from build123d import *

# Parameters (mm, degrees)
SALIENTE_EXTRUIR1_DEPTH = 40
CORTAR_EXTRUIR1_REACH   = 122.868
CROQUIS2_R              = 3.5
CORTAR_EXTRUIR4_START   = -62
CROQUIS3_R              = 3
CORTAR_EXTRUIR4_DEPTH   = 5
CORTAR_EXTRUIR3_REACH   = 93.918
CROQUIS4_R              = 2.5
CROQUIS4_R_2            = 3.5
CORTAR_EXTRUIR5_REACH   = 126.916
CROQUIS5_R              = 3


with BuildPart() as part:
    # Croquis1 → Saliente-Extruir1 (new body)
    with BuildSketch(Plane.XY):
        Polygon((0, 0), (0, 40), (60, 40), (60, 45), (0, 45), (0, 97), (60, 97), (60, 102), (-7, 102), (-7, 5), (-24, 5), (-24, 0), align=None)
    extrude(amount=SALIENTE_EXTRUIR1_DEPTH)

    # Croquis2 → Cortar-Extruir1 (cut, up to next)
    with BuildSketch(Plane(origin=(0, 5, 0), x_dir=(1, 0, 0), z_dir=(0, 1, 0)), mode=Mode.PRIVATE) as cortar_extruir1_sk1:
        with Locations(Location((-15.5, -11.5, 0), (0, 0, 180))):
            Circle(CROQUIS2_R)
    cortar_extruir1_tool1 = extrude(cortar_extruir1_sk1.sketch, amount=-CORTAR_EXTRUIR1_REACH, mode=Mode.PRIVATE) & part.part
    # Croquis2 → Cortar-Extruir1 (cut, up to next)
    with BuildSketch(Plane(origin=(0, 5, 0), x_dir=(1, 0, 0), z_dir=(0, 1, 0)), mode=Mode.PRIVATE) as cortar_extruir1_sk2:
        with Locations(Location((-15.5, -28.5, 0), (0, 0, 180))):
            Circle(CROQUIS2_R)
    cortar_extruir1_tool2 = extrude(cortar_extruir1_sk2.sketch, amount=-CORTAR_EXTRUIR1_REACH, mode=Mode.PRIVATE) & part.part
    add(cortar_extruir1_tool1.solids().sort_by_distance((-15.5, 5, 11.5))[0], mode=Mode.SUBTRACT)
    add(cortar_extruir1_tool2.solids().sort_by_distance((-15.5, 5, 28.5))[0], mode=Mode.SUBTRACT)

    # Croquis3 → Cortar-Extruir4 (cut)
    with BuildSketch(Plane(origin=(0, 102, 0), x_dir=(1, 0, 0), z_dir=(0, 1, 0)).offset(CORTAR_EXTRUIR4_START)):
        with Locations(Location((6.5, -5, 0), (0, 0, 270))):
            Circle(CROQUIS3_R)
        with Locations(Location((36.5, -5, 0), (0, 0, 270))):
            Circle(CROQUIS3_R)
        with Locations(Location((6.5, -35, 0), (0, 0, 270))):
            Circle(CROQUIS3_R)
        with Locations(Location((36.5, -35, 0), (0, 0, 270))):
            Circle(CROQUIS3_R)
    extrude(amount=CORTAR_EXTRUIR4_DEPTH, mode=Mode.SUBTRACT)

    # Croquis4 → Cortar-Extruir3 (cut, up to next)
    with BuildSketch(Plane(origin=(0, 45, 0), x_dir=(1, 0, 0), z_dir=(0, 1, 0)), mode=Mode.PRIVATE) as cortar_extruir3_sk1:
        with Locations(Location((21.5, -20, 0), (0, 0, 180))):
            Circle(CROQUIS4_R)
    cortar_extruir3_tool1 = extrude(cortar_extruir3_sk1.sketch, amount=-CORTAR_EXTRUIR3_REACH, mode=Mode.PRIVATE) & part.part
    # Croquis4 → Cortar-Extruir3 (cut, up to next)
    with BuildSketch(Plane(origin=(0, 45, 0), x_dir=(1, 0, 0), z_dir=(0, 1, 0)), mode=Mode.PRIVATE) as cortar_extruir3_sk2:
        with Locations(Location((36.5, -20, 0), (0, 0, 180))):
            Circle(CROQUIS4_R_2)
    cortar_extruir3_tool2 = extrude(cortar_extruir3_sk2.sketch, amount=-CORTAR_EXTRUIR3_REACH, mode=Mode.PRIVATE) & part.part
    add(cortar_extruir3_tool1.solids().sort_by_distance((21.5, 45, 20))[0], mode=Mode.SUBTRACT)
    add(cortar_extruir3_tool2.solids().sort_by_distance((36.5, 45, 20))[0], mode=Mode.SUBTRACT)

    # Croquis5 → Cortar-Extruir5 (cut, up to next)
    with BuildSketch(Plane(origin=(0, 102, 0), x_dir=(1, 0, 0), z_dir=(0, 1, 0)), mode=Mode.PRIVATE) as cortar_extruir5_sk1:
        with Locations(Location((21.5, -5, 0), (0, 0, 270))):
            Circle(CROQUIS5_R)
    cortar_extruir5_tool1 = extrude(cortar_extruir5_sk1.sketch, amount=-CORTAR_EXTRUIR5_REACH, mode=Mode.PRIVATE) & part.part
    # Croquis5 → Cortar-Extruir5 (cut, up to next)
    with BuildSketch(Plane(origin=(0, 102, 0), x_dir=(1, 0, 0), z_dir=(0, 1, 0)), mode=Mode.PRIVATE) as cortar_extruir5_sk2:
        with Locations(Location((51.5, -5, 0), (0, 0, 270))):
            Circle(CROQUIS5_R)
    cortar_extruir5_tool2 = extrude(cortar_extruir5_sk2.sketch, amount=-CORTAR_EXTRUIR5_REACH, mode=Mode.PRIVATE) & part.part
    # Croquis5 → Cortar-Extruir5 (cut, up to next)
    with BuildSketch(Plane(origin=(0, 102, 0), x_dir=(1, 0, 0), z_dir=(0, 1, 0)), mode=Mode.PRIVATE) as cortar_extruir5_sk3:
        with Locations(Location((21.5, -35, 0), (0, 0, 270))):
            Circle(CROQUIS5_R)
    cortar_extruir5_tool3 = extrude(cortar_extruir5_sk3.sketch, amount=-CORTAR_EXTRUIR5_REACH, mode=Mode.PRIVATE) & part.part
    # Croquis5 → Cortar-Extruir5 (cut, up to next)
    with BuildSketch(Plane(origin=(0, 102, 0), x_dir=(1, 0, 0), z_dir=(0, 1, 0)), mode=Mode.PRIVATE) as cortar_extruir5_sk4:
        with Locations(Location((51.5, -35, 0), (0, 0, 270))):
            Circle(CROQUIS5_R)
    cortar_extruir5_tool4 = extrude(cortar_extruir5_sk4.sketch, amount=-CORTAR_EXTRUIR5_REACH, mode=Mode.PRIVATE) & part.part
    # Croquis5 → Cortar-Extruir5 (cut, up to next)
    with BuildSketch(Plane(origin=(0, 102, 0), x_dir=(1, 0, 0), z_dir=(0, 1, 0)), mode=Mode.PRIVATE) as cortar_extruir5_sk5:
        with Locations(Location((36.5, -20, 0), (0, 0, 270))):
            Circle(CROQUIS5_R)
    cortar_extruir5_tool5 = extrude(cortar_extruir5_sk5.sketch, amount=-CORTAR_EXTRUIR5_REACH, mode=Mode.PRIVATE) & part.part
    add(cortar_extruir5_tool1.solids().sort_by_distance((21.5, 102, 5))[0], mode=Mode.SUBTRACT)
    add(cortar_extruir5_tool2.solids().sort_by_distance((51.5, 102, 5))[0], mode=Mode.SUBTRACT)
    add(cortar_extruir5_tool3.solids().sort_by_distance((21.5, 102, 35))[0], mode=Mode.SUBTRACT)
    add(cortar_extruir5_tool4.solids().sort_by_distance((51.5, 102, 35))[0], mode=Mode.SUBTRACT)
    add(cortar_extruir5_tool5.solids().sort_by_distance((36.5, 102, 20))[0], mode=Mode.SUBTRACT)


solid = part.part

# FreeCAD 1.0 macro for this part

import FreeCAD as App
import Part
import Sketcher
Q = App.Units.Quantity


def add_polygon(sketch, points):
    """Adds a closed chain of lines whose ends are joined by coincident constraints."""
    first, n = sketch.GeometryCount, len(points)
    for a, b in zip(points, points[1:] + points[:1]):
        sketch.addGeometry(Part.LineSegment(App.Vector(*a, 0), App.Vector(*b, 0)), False)
    for i in range(n):
        sketch.addConstraint(Sketcher.Constraint("Coincident", first + i, 2, first + (i + 1) % n, 1))

doc = App.newDocument("Part")
params = doc.addObject("Spreadsheet::Sheet", "Params")
for row, (alias, value) in enumerate([
    ("sketch1_width", "60 mm"),
    ("sketch1_width2", "67 mm"),
    ("sketch1_width3", "17 mm"),
    ("sketch1_height", "40 mm"),
    ("sketch1_height2", "5 mm"),
    ("pad1_length", "40 mm"),
    ("sketch2_diameter", "7 mm"),
    ("sketch3_diameter", "7 mm"),
    ("sketch4_diameter", "6 mm"),
    ("pocket3_length", "5 mm"),
    ("sketch5_diameter", "5 mm"),
    ("sketch6_diameter", "7 mm"),
    ("sketch7_diameter", "6 mm"),
    ("sketch8_diameter", "6 mm"),
    ("sketch9_diameter", "6 mm"),
    ("sketch10_diameter", "6 mm"),
    ("sketch11_diameter", "6 mm"),
], start=1):
    params.set(f"A{row}", alias)
    params.set(f"B{row}", "=" + value)
    params.setAlias(f"B{row}", alias)

body = doc.addObject("PartDesign::Body", "Body")

# Sketch on XY plane
sketch1 = body.newObject("Sketcher::SketchObject", "Sketch")
sketch1.AttachmentSupport = (doc.getObject("XY_Plane"), [""])
sketch1.MapMode = "FlatFace"
add_polygon(sketch1, [(0, 0), (0, 40), (60, 40), (60, 45), (0, 45), (0, 97), (60, 97), (60, 102), (-7, 102), (-7, 5), (-24, 5), (-24, 0)])  # lines 0-11
sketch1.addConstraint([
    Sketcher.Constraint("Vertical", 0),
    Sketcher.Constraint("Horizontal", 1),
    Sketcher.Constraint("Vertical", 2),
    Sketcher.Constraint("Horizontal", 3),
    Sketcher.Constraint("Vertical", 4),
    Sketcher.Constraint("Horizontal", 5),
    Sketcher.Constraint("Vertical", 6),
    Sketcher.Constraint("Horizontal", 7),
    Sketcher.Constraint("Vertical", 8),
    Sketcher.Constraint("Horizontal", 9),
    Sketcher.Constraint("Vertical", 10),
    Sketcher.Constraint("Horizontal", 11),
    Sketcher.Constraint("Coincident", 11, 2, -1, 1),
    Sketcher.Constraint("PointOnObject", 3, 2, -2),
    Sketcher.Constraint("Vertical", 2, 2, 5, 2),
    Sketcher.Constraint("Equal", 2, 6),
    Sketcher.Constraint("Equal", 6, 10),
    Sketcher.Constraint("DistanceX", 1, 1, 1, 2, Q("60 mm")),
    Sketcher.Constraint("DistanceX", 7, 2, 7, 1, Q("67 mm")),
    Sketcher.Constraint("DistanceX", 9, 2, 9, 1, Q("17 mm")),
    Sketcher.Constraint("DistanceY", 0, 1, 0, 2, Q("40 mm")),
    Sketcher.Constraint("DistanceY", 2, 1, 2, 2, Q("5 mm")),
    Sketcher.Constraint("DistanceY", 4, 1, 4, 2, Q("52 mm")),
])
sketch1.setExpression("Constraints[29]", "Params.sketch1_width")
sketch1.setExpression("Constraints[30]", "Params.sketch1_width2")
sketch1.setExpression("Constraints[31]", "Params.sketch1_width3")
sketch1.setExpression("Constraints[32]", "Params.sketch1_height")
sketch1.setExpression("Constraints[33]", "Params.sketch1_height2")
pad1 = body.newObject("PartDesign::Pad", "Pad")
pad1.Profile = sketch1
pad1.setExpression("Length", "Params.pad1_length")

# Sketch on XZ plane
sketch2 = body.newObject("Sketcher::SketchObject", "Sketch001")
sketch2.AttachmentSupport = (doc.getObject("XZ_Plane"), [""])
sketch2.MapMode = "FlatFace"
sketch2.AttachmentOffset = App.Placement(App.Vector(0, 0, -5), App.Rotation())
sketch2.addGeometry(Part.Circle(App.Vector(-15.5, 11.5, 0), App.Vector(0, 0, 1), 3.5), False)
sketch2.addConstraint([
    Sketcher.Constraint("Diameter", 0, Q("7 mm")),
    Sketcher.Constraint("DistanceX", 0, 3, -1, 1, Q("15.5 mm")),
    Sketcher.Constraint("DistanceY", -1, 1, 0, 3, Q("11.5 mm")),
])
sketch2.setExpression("Constraints[0]", "Params.sketch2_diameter")
pocket1 = body.newObject("PartDesign::Pocket", "Pocket")
pocket1.Profile = sketch2
pocket1.Type = "UpToFirst"
pocket1.Reversed = True

# Sketch on XZ plane
sketch3 = body.newObject("Sketcher::SketchObject", "Sketch002")
sketch3.AttachmentSupport = (doc.getObject("XZ_Plane"), [""])
sketch3.MapMode = "FlatFace"
sketch3.AttachmentOffset = App.Placement(App.Vector(0, 0, -5), App.Rotation())
sketch3.addGeometry(Part.Circle(App.Vector(-15.5, 28.5, 0), App.Vector(0, 0, 1), 3.5), False)
sketch3.addConstraint([
    Sketcher.Constraint("Diameter", 0, Q("7 mm")),
    Sketcher.Constraint("DistanceX", 0, 3, -1, 1, Q("15.5 mm")),
    Sketcher.Constraint("DistanceY", -1, 1, 0, 3, Q("28.5 mm")),
])
sketch3.setExpression("Constraints[0]", "Params.sketch3_diameter")
pocket2 = body.newObject("PartDesign::Pocket", "Pocket001")
pocket2.Profile = sketch3
pocket2.Type = "UpToFirst"
pocket2.Reversed = True

# Sketch on XZ plane
sketch4 = body.newObject("Sketcher::SketchObject", "Sketch003")
sketch4.AttachmentSupport = (doc.getObject("XZ_Plane"), [""])
sketch4.MapMode = "FlatFace"
sketch4.AttachmentOffset = App.Placement(App.Vector(0, 0, -40), App.Rotation())
sketch4.addGeometry([
    Part.Circle(App.Vector(6.5, 5, 0), App.Vector(0, 0, 1), 3),
    Part.Circle(App.Vector(36.5, 5, 0), App.Vector(0, 0, 1), 3),
    Part.Circle(App.Vector(6.5, 35, 0), App.Vector(0, 0, 1), 3),
    Part.Circle(App.Vector(36.5, 35, 0), App.Vector(0, 0, 1), 3),
], False)
sketch4.addConstraint([
    Sketcher.Constraint("Equal", 0, 1),
    Sketcher.Constraint("Equal", 1, 2),
    Sketcher.Constraint("Equal", 2, 3),
    Sketcher.Constraint("Horizontal", 0, 3, 1, 3),
    Sketcher.Constraint("Horizontal", 2, 3, 3, 3),
    Sketcher.Constraint("Vertical", 0, 3, 2, 3),
    Sketcher.Constraint("Vertical", 1, 3, 3, 3),
    Sketcher.Constraint("Diameter", 0, Q("6 mm")),
    Sketcher.Constraint("DistanceY", -1, 1, 0, 3, Q("5 mm")),
    Sketcher.Constraint("DistanceY", -1, 1, 2, 3, Q("35 mm")),
    Sketcher.Constraint("DistanceX", 0, 3, 1, 3, Q("30 mm")),
    Sketcher.Constraint("DistanceX", -1, 1, 0, 3, Q("6.5 mm")),
])
sketch4.setExpression("Constraints[7]", "Params.sketch4_diameter")
pocket3 = body.newObject("PartDesign::Pocket", "Pocket002")
pocket3.Profile = sketch4
pocket3.setExpression("Length", "Params.pocket3_length")

# Sketch on XZ plane
sketch5 = body.newObject("Sketcher::SketchObject", "Sketch004")
sketch5.AttachmentSupport = (doc.getObject("XZ_Plane"), [""])
sketch5.MapMode = "FlatFace"
sketch5.AttachmentOffset = App.Placement(App.Vector(0, 0, -45), App.Rotation())
sketch5.addGeometry(Part.Circle(App.Vector(21.5, 20, 0), App.Vector(0, 0, 1), 2.5), False)
sketch5.addConstraint([
    Sketcher.Constraint("Diameter", 0, Q("5 mm")),
    Sketcher.Constraint("DistanceY", -1, 1, 0, 3, Q("20 mm")),
    Sketcher.Constraint("DistanceX", -1, 1, 0, 3, Q("21.5 mm")),
])
sketch5.setExpression("Constraints[0]", "Params.sketch5_diameter")
pocket4 = body.newObject("PartDesign::Pocket", "Pocket003")
pocket4.Profile = sketch5
pocket4.Type = "UpToFirst"
pocket4.Reversed = True

# Sketch on XZ plane
sketch6 = body.newObject("Sketcher::SketchObject", "Sketch005")
sketch6.AttachmentSupport = (doc.getObject("XZ_Plane"), [""])
sketch6.MapMode = "FlatFace"
sketch6.AttachmentOffset = App.Placement(App.Vector(0, 0, -45), App.Rotation())
sketch6.addGeometry(Part.Circle(App.Vector(36.5, 20, 0), App.Vector(0, 0, 1), 3.5), False)
sketch6.addConstraint([
    Sketcher.Constraint("Diameter", 0, Q("7 mm")),
    Sketcher.Constraint("DistanceY", -1, 1, 0, 3, Q("20 mm")),
    Sketcher.Constraint("DistanceX", -1, 1, 0, 3, Q("36.5 mm")),
])
sketch6.setExpression("Constraints[0]", "Params.sketch6_diameter")
pocket5 = body.newObject("PartDesign::Pocket", "Pocket004")
pocket5.Profile = sketch6
pocket5.Type = "UpToFirst"
pocket5.Reversed = True

# Sketch on XZ plane
sketch7 = body.newObject("Sketcher::SketchObject", "Sketch006")
sketch7.AttachmentSupport = (doc.getObject("XZ_Plane"), [""])
sketch7.MapMode = "FlatFace"
sketch7.AttachmentOffset = App.Placement(App.Vector(0, 0, -102), App.Rotation())
sketch7.addGeometry(Part.Circle(App.Vector(21.5, 5, 0), App.Vector(0, 0, 1), 3), False)
sketch7.addConstraint([
    Sketcher.Constraint("Diameter", 0, Q("6 mm")),
    Sketcher.Constraint("DistanceY", -1, 1, 0, 3, Q("5 mm")),
    Sketcher.Constraint("DistanceX", -1, 1, 0, 3, Q("21.5 mm")),
])
sketch7.setExpression("Constraints[0]", "Params.sketch7_diameter")
pocket6 = body.newObject("PartDesign::Pocket", "Pocket005")
pocket6.Profile = sketch7
pocket6.Type = "UpToFirst"
pocket6.Reversed = True

# Sketch on XZ plane
sketch8 = body.newObject("Sketcher::SketchObject", "Sketch007")
sketch8.AttachmentSupport = (doc.getObject("XZ_Plane"), [""])
sketch8.MapMode = "FlatFace"
sketch8.AttachmentOffset = App.Placement(App.Vector(0, 0, -102), App.Rotation())
sketch8.addGeometry(Part.Circle(App.Vector(51.5, 5, 0), App.Vector(0, 0, 1), 3), False)
sketch8.addConstraint([
    Sketcher.Constraint("Diameter", 0, Q("6 mm")),
    Sketcher.Constraint("DistanceY", -1, 1, 0, 3, Q("5 mm")),
    Sketcher.Constraint("DistanceX", -1, 1, 0, 3, Q("51.5 mm")),
])
sketch8.setExpression("Constraints[0]", "Params.sketch8_diameter")
pocket7 = body.newObject("PartDesign::Pocket", "Pocket006")
pocket7.Profile = sketch8
pocket7.Type = "UpToFirst"
pocket7.Reversed = True

# Sketch on XZ plane
sketch9 = body.newObject("Sketcher::SketchObject", "Sketch008")
sketch9.AttachmentSupport = (doc.getObject("XZ_Plane"), [""])
sketch9.MapMode = "FlatFace"
sketch9.AttachmentOffset = App.Placement(App.Vector(0, 0, -102), App.Rotation())
sketch9.addGeometry(Part.Circle(App.Vector(21.5, 35, 0), App.Vector(0, 0, 1), 3), False)
sketch9.addConstraint([
    Sketcher.Constraint("Diameter", 0, Q("6 mm")),
    Sketcher.Constraint("DistanceY", -1, 1, 0, 3, Q("35 mm")),
    Sketcher.Constraint("DistanceX", -1, 1, 0, 3, Q("21.5 mm")),
])
sketch9.setExpression("Constraints[0]", "Params.sketch9_diameter")
pocket8 = body.newObject("PartDesign::Pocket", "Pocket007")
pocket8.Profile = sketch9
pocket8.Type = "UpToFirst"
pocket8.Reversed = True

# Sketch on XZ plane
sketch10 = body.newObject("Sketcher::SketchObject", "Sketch009")
sketch10.AttachmentSupport = (doc.getObject("XZ_Plane"), [""])
sketch10.MapMode = "FlatFace"
sketch10.AttachmentOffset = App.Placement(App.Vector(0, 0, -102), App.Rotation())
sketch10.addGeometry(Part.Circle(App.Vector(51.5, 35, 0), App.Vector(0, 0, 1), 3), False)
sketch10.addConstraint([
    Sketcher.Constraint("Diameter", 0, Q("6 mm")),
    Sketcher.Constraint("DistanceY", -1, 1, 0, 3, Q("35 mm")),
    Sketcher.Constraint("DistanceX", -1, 1, 0, 3, Q("51.5 mm")),
])
sketch10.setExpression("Constraints[0]", "Params.sketch10_diameter")
pocket9 = body.newObject("PartDesign::Pocket", "Pocket008")
pocket9.Profile = sketch10
pocket9.Type = "UpToFirst"
pocket9.Reversed = True

# Sketch on XZ plane
sketch11 = body.newObject("Sketcher::SketchObject", "Sketch010")
sketch11.AttachmentSupport = (doc.getObject("XZ_Plane"), [""])
sketch11.MapMode = "FlatFace"
sketch11.AttachmentOffset = App.Placement(App.Vector(0, 0, -102), App.Rotation())
sketch11.addGeometry(Part.Circle(App.Vector(36.5, 20, 0), App.Vector(0, 0, 1), 3), False)
sketch11.addConstraint([
    Sketcher.Constraint("Diameter", 0, Q("6 mm")),
    Sketcher.Constraint("DistanceY", -1, 1, 0, 3, Q("20 mm")),
    Sketcher.Constraint("DistanceX", -1, 1, 0, 3, Q("36.5 mm")),
])
sketch11.setExpression("Constraints[0]", "Params.sketch11_diameter")
pocket10 = body.newObject("PartDesign::Pocket", "Pocket009")
pocket10.Profile = sketch11
pocket10.Type = "UpToFirst"
pocket10.Reversed = True

doc.recompute()
